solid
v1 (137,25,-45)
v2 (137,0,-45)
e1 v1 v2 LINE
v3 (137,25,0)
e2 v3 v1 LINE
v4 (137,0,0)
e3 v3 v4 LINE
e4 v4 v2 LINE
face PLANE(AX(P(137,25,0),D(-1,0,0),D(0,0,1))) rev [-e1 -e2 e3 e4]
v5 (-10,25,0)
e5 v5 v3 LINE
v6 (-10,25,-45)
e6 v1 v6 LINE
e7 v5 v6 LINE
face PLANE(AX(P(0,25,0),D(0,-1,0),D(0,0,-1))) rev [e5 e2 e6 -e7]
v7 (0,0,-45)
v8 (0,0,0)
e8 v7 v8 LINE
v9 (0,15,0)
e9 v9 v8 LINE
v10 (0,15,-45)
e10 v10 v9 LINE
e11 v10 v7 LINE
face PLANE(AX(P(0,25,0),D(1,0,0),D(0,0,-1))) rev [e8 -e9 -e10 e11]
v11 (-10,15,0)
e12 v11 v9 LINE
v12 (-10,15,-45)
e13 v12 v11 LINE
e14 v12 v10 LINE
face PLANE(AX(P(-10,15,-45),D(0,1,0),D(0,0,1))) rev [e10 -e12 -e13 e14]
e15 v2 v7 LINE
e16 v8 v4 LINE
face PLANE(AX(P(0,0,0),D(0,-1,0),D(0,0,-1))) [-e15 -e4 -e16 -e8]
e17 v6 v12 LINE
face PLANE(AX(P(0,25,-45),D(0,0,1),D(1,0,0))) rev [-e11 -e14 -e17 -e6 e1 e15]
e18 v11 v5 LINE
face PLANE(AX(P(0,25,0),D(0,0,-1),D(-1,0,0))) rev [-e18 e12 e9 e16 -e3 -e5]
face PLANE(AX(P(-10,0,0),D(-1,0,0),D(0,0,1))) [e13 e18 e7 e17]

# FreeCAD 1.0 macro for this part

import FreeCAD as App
import Part
import Sketcher
from FreeCAD import Vector
Q = App.Units.Quantity


def add_polygon(sketch, points):
    """Adds a closed chain of lines whose ends are joined by coincident constraints."""
    first, n = sketch.GeometryCount, len(points)
    for a, b in zip(points, points[1:] + points[:1]):
        sketch.addGeometry(Part.LineSegment(App.Vector(*a, 0), App.Vector(*b, 0)), False)
    for i in range(n):
        sketch.addConstraint(Sketcher.Constraint("Coincident", first + i, 2, first + (i + 1) % n, 1))

doc = App.newDocument("Part")
body = doc.addObject("PartDesign::Body", "Body")

sketch1 = doc.addObject("Sketcher::SketchObject", "Sketch")
body.addObject(sketch1)
sketch1.AttachmentSupport = (doc.XZ_Plane, [""])
sketch1.MapMode = "FlatFace"
add_polygon(sketch1, [(0, -45), (0, 0), (137, 0), (137, -45)])
sketch1.addConstraint(Sketcher.Constraint("Vertical", 0))
sketch1.addConstraint(Sketcher.Constraint("Horizontal", 1))
sketch1.addConstraint(Sketcher.Constraint("Vertical", 2))
sketch1.addConstraint(Sketcher.Constraint("Horizontal", 3))
sketch1.addConstraint(Sketcher.Constraint("Coincident", 0, 2, -1, 1))
sketch1.addConstraint(Sketcher.Constraint("DistanceX", 1, 1, 1, 2, Q("137 mm")))
sketch1.addConstraint(Sketcher.Constraint("DistanceY", 0, 1, 0, 2, Q("45 mm")))
pad1 = doc.addObject("PartDesign::Pad", "Pad")
body.addObject(pad1)
pad1.Profile = sketch1
pad1.Length = 25
pad1.Reversed = True

sketch2 = doc.addObject("Sketcher::SketchObject", "Sketch001")
body.addObject(sketch2)
sketch2.AttachmentSupport = (doc.YZ_Plane, [""])
sketch2.MapMode = "FlatFace"
add_polygon(sketch2, [(25, -45), (15, -45), (15, 0), (25, 0)])
sketch2.addConstraint(Sketcher.Constraint("Horizontal", 0))
sketch2.addConstraint(Sketcher.Constraint("Vertical", 1))
sketch2.addConstraint(Sketcher.Constraint("Horizontal", 2))
sketch2.addConstraint(Sketcher.Constraint("Vertical", 3))
sketch2.addConstraint(Sketcher.Constraint("PointOnObject", 1, 2, -1))
sketch2.addConstraint(Sketcher.Constraint("DistanceX", 0, 2, 0, 1, Q("10 mm")))
sketch2.addConstraint(Sketcher.Constraint("DistanceY", 1, 1, 1, 2, Q("45 mm")))
sketch2.addConstraint(Sketcher.Constraint("DistanceX", -1, 1, 0, 2, Q("15 mm")))
pad2 = doc.addObject("PartDesign::Pad", "Pad001")
body.addObject(pad2)
pad2.Profile = sketch2
pad2.Length = 10
pad2.Reversed = True

doc.recompute()
